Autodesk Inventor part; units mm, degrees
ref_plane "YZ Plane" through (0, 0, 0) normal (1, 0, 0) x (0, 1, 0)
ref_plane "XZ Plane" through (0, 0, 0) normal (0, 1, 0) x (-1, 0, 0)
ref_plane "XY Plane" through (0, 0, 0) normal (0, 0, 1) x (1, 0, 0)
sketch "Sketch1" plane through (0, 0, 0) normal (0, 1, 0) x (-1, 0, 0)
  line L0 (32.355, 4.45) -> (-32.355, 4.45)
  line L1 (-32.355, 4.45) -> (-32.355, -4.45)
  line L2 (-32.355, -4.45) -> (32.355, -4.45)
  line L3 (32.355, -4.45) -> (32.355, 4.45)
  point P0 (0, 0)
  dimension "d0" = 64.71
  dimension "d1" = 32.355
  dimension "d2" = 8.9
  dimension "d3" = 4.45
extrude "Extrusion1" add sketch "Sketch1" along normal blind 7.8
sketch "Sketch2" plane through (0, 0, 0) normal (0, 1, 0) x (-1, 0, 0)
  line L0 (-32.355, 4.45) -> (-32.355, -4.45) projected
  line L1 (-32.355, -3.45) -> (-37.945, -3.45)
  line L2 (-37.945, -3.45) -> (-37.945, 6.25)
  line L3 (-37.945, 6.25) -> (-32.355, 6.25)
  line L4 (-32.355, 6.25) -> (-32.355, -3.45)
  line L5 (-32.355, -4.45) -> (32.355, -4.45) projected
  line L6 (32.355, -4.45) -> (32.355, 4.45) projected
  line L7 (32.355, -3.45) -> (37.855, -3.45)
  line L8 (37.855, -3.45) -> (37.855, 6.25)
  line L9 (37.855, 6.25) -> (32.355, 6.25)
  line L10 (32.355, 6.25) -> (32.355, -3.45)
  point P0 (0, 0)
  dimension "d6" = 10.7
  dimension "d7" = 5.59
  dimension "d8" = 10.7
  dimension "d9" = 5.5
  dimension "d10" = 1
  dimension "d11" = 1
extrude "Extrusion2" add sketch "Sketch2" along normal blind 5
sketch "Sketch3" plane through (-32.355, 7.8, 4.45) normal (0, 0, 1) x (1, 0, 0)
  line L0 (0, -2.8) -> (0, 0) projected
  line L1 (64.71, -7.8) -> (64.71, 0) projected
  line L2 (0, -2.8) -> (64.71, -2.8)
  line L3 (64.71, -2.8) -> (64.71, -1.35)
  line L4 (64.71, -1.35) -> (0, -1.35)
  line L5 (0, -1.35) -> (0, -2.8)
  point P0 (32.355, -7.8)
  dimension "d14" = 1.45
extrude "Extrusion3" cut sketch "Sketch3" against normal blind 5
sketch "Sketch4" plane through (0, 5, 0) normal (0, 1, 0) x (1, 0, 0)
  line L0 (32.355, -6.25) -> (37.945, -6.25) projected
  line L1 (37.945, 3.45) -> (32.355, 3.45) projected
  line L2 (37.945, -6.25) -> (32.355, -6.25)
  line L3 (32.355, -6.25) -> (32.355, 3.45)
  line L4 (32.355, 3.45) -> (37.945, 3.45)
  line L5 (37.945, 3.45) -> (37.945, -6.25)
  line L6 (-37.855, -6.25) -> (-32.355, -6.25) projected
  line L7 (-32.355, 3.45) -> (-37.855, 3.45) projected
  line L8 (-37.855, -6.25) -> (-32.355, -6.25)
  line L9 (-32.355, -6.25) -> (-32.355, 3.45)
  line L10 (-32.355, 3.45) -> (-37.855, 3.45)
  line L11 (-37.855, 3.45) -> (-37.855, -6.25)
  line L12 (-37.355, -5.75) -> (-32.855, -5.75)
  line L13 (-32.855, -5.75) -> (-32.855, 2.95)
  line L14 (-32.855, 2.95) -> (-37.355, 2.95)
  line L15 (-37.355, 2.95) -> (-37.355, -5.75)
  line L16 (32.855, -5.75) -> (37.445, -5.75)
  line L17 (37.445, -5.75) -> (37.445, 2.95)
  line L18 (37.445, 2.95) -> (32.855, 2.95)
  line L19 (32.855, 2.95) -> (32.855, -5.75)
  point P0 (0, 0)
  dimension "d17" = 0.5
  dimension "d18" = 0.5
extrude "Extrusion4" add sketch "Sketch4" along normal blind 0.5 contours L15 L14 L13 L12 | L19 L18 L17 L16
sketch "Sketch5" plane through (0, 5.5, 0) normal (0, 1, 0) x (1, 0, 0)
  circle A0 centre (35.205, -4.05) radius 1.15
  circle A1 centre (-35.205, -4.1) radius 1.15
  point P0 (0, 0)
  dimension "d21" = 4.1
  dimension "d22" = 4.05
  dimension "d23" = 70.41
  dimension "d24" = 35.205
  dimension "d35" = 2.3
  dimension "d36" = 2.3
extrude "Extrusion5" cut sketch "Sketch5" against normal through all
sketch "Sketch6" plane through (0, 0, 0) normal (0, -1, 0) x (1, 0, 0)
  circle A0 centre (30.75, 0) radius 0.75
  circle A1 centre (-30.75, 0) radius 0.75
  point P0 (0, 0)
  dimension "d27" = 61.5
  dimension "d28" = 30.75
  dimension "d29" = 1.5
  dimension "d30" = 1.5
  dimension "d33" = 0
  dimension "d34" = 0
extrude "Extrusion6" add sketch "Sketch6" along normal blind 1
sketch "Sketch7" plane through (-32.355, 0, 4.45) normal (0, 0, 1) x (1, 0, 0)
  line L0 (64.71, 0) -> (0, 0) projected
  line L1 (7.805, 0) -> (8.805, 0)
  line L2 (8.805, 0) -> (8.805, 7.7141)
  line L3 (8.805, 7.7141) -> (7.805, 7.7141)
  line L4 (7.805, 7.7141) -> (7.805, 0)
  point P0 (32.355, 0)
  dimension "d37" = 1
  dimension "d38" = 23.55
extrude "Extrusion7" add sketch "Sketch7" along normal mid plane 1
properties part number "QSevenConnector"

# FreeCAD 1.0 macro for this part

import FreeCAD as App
import Part
import Sketcher
Q = App.Units.Quantity


def add_polygon(sketch, points):
    """Adds a closed chain of lines whose ends are joined by coincident constraints."""
    first, n = sketch.GeometryCount, len(points)
    for a, b in zip(points, points[1:] + points[:1]):
        sketch.addGeometry(Part.LineSegment(App.Vector(*a, 0), App.Vector(*b, 0)), False)
    for i in range(n):
        sketch.addConstraint(Sketcher.Constraint("Coincident", first + i, 2, first + (i + 1) % n, 1))

doc = App.newDocument("Part")
params = doc.addObject("Spreadsheet::Sheet", "Params")
for row, (alias, value) in enumerate([
    ("sketch1_height", "8.9 mm"),
    ("sketch1_width", "64.71 mm"),
    ("pad1_length", "7.8 mm"),
    ("sketch2_width", "5.5 mm"),
    ("sketch2_width2", "5.59 mm"),
    ("sketch2_height", "9.7 mm"),
    ("pad2_length", "5 mm"),
    ("sketch3_height", "1.45 mm"),
    ("sketch3_width", "64.71 mm"),
    ("pocket1_length", "5 mm"),
    ("sketch4_width", "4.5 mm"),
    ("sketch4_height", "8.7 mm"),
    ("sketch4_width2", "4.59 mm"),
    ("pad3_length", "0.5 mm"),
    ("sketch5_diameter", "2.3 mm"),
    ("sketch6_diameter", "1.5 mm"),
    ("pad4_length", "1 mm"),
    ("sketch7_width", "1 mm"),
    ("pad5_length", "1 mm"),
], start=1):
    params.set(f"A{row}", alias)
    params.set(f"B{row}", "=" + value)
    params.setAlias(f"B{row}", alias)

body = doc.addObject("PartDesign::Body", "Body")

sketch1 = body.newObject("Sketcher::SketchObject", "Sketch")
sketch1.AttachmentSupport = (doc.getObject("XZ_Plane"), [""])
sketch1.MapMode = "FlatFace"
add_polygon(sketch1, [(-32, -4), (-32, 4), (32, 4), (32, -4)])
sketch1.addConstraint(Sketcher.Constraint("Vertical", 0))
sketch1.addConstraint(Sketcher.Constraint("Horizontal", 1))
sketch1.addConstraint(Sketcher.Constraint("Vertical", 2))
sketch1.addConstraint(Sketcher.Constraint("Horizontal", 3))
sketch1.addConstraint(Sketcher.Constraint("Symmetric", 0, 2, 2, 2, -1, 1))
sketch1.addConstraint(Sketcher.Constraint("DistanceY", 0, 1, 0, 2, Q("8.9 mm")))
sketch1.addConstraint(Sketcher.Constraint("DistanceX", 1, 1, 1, 2, Q("64.71 mm")))
sketch1.setExpression("Constraints[9]", "Params.sketch1_height")
sketch1.setExpression("Constraints[10]", "Params.sketch1_width")
pad1 = body.newObject("PartDesign::Pad", "Pad")
pad1.Profile = sketch1
pad1.setExpression("Length", "Params.pad1_length")
pad1.Reversed = True

sketch2 = body.newObject("Sketcher::SketchObject", "Sketch001")
sketch2.AttachmentSupport = (doc.getObject("XZ_Plane"), [""])
sketch2.MapMode = "FlatFace"
add_polygon(sketch2, [(-32, 6), (-32, -3), (-38, -3), (-38, 6)])
add_polygon(sketch2, [(32, -3), (32, 6), (38, 6), (38, -3)])
sketch2.addConstraint(Sketcher.Constraint("Vertical", 0))
sketch2.addConstraint(Sketcher.Constraint("Horizontal", 1))
sketch2.addConstraint(Sketcher.Constraint("Vertical", 2))
sketch2.addConstraint(Sketcher.Constraint("Horizontal", 3))
sketch2.addConstraint(Sketcher.Constraint("Vertical", 4))
sketch2.addConstraint(Sketcher.Constraint("Horizontal", 5))
sketch2.addConstraint(Sketcher.Constraint("Vertical", 6))
sketch2.addConstraint(Sketcher.Constraint("Horizontal", 7))
sketch2.addConstraint(Sketcher.Constraint("Symmetric", 3, 2, 4, 2, -2))
sketch2.addConstraint(Sketcher.Constraint("Horizontal", 1, 2, 6, 2))
sketch2.addConstraint(Sketcher.Constraint("DistanceX", 1, 2, 1, 1, Q("5.5 mm")))
sketch2.addConstraint(Sketcher.Constraint("DistanceX", 5, 1, 5, 2, Q("5.59 mm")))
sketch2.addConstraint(Sketcher.Constraint("DistanceY", 0, 2, 0, 1, Q("9.7 mm")))
sketch2.addConstraint(Sketcher.Constraint("DistanceX", 3, 2, 5, 2, Q("70.3 mm")))
sketch2.addConstraint(Sketcher.Constraint("DistanceY", 0, 2, -1, 1, Q("3.45 mm")))
sketch2.setExpression("Constraints[18]", "Params.sketch2_width")
sketch2.setExpression("Constraints[19]", "Params.sketch2_width2")
sketch2.setExpression("Constraints[20]", "Params.sketch2_height")
pad2 = body.newObject("PartDesign::Pad", "Pad001")
pad2.Profile = sketch2
pad2.setExpression("Length", "Params.pad2_length")
pad2.Reversed = True

sketch3 = body.newObject("Sketcher::SketchObject", "Sketch002")
sketch3.AttachmentSupport = (doc.getObject("XY_Plane"), [""])
sketch3.MapMode = "FlatFace"
sketch3.AttachmentOffset = App.Placement(App.Vector(0, 0, 4.45), App.Rotation())
add_polygon(sketch3, [(-32.4, 6.5), (-32.4, 5), (32.4, 5), (32.4, 6.5)])
sketch3.addConstraint(Sketcher.Constraint("Vertical", 0))
sketch3.addConstraint(Sketcher.Constraint("Horizontal", 1))
sketch3.addConstraint(Sketcher.Constraint("Vertical", 2))
sketch3.addConstraint(Sketcher.Constraint("Horizontal", 3))
sketch3.addConstraint(Sketcher.Constraint("DistanceY", 0, 2, 0, 1, Q("1.45 mm")))
sketch3.addConstraint(Sketcher.Constraint("DistanceY", -1, 1, 0, 2, Q("5 mm")))
sketch3.addConstraint(Sketcher.Constraint("DistanceX", 1, 1, 1, 2, Q("64.71 mm")))
sketch3.addConstraint(Sketcher.Constraint("DistanceX", 0, 2, -1, 1, Q("32.355 mm")))
sketch3.setExpression("Constraints[8]", "Params.sketch3_height")
sketch3.setExpression("Constraints[10]", "Params.sketch3_width")
pocket1 = body.newObject("PartDesign::Pocket", "Pocket")
pocket1.Profile = sketch3
pocket1.setExpression("Length", "Params.pocket1_length")

sketch4 = body.newObject("Sketcher::SketchObject", "Sketch003")
sketch4.AttachmentSupport = (doc.getObject("XZ_Plane"), [""])
sketch4.MapMode = "FlatFace"
sketch4.AttachmentOffset = App.Placement(App.Vector(0, 0, -5), App.Rotation())
add_polygon(sketch4, [(-37.4, -3), (-37.4, 5.8), (-32.9, 5.8), (-32.9, -3)])
add_polygon(sketch4, [(32.9, -3), (32.9, 5.8), (37.4, 5.8), (37.4, -3)])
sketch4.addConstraint(Sketcher.Constraint("Vertical", 0))
sketch4.addConstraint(Sketcher.Constraint("Horizontal", 1))
sketch4.addConstraint(Sketcher.Constraint("Vertical", 2))
sketch4.addConstraint(Sketcher.Constraint("Horizontal", 3))
sketch4.addConstraint(Sketcher.Constraint("Vertical", 4))
sketch4.addConstraint(Sketcher.Constraint("Horizontal", 5))
sketch4.addConstraint(Sketcher.Constraint("Vertical", 6))
sketch4.addConstraint(Sketcher.Constraint("Horizontal", 7))
sketch4.addConstraint(Sketcher.Constraint("Symmetric", 1, 2, 4, 2, -2))
sketch4.addConstraint(Sketcher.Constraint("Horizontal", 3, 2, 6, 2))
sketch4.addConstraint(Sketcher.Constraint("DistanceX", 1, 1, 1, 2, Q("4.5 mm")))
sketch4.addConstraint(Sketcher.Constraint("DistanceY", 0, 1, 0, 2, Q("8.7 mm")))
sketch4.addConstraint(Sketcher.Constraint("DistanceX", 5, 1, 5, 2, Q("4.59 mm")))
sketch4.addConstraint(Sketcher.Constraint("DistanceX", 1, 2, 5, 2, Q("70.3 mm")))
sketch4.addConstraint(Sketcher.Constraint("DistanceY", -1, 1, 0, 2, Q("5.75 mm")))
sketch4.setExpression("Constraints[18]", "Params.sketch4_width")
sketch4.setExpression("Constraints[19]", "Params.sketch4_height")
sketch4.setExpression("Constraints[20]", "Params.sketch4_width2")
pad3 = body.newObject("PartDesign::Pad", "Pad002")
pad3.Profile = sketch4
pad3.setExpression("Length", "Params.pad3_length")
pad3.Reversed = True

sketch5 = body.newObject("Sketcher::SketchObject", "Sketch004")
sketch5.AttachmentSupport = (doc.getObject("XZ_Plane"), [""])
sketch5.MapMode = "FlatFace"
sketch5.AttachmentOffset = App.Placement(App.Vector(0, 0, -5.5), App.Rotation())
sketch5.addGeometry(Part.Circle(App.Vector(35.2, 4, 0), App.Vector(0, 0, 1), 1.1), False)
sketch5.addGeometry(Part.Circle(App.Vector(-35.2, 4.1, 0), App.Vector(0, 0, 1), 1.1), False)
sketch5.addConstraint(Sketcher.Constraint("Equal", 0, 1))
sketch5.addConstraint(Sketcher.Constraint("Diameter", 0, Q("2.3 mm")))
sketch5.addConstraint(Sketcher.Constraint("DistanceY", -1, 1, 1, 3, Q("4.1 mm")))
sketch5.addConstraint(Sketcher.Constraint("DistanceY", -1, 1, 0, 3, Q("4.05 mm")))
sketch5.addConstraint(Sketcher.Constraint("DistanceX", 1, 3, 0, 3, Q("70.41 mm")))
sketch5.addConstraint(Sketcher.Constraint("DistanceX", -1, 1, 0, 3, Q("35.205 mm")))
sketch5.setExpression("Constraints[1]", "Params.sketch5_diameter")
pocket2 = body.newObject("PartDesign::Pocket", "Pocket001")
pocket2.Profile = sketch5
pocket2.Type = "ThroughAll"
pocket2.Reversed = True

sketch6 = body.newObject("Sketcher::SketchObject", "Sketch005")
sketch6.AttachmentSupport = (doc.getObject("XZ_Plane"), [""])
sketch6.MapMode = "FlatFace"
sketch6.addGeometry(Part.Circle(App.Vector(30.8, 0, 0), App.Vector(0, 0, 1), 0.8), False)
sketch6.addGeometry(Part.Circle(App.Vector(-30.8, 0, 0), App.Vector(0, 0, 1), 0.8), False)
sketch6.addConstraint(Sketcher.Constraint("Equal", 0, 1))
sketch6.addConstraint(Sketcher.Constraint("Symmetric", 0, 3, 1, 3, -1, 1))
sketch6.addConstraint(Sketcher.Constraint("PointOnObject", 0, 3, -1))
sketch6.addConstraint(Sketcher.Constraint("Diameter", 0, Q("1.5 mm")))
sketch6.addConstraint(Sketcher.Constraint("DistanceX", 1, 3, 0, 3, Q("61.5 mm")))
sketch6.setExpression("Constraints[3]", "Params.sketch6_diameter")
pad4 = body.newObject("PartDesign::Pad", "Pad003")
pad4.Profile = sketch6
pad4.setExpression("Length", "Params.pad4_length")

sketch7 = body.newObject("Sketcher::SketchObject", "Sketch006")
sketch7.AttachmentSupport = (doc.getObject("XY_Plane"), [""])
sketch7.MapMode = "FlatFace"
sketch7.AttachmentOffset = App.Placement(App.Vector(0, 0, 4.45), App.Rotation())
add_polygon(sketch7, [(-24.6, 0), (-23.6, 0), (-23.6, 7.7), (-24.6, 7.7)])
sketch7.addConstraint(Sketcher.Constraint("Horizontal", 0))
sketch7.addConstraint(Sketcher.Constraint("Vertical", 1))
sketch7.addConstraint(Sketcher.Constraint("Horizontal", 2))
sketch7.addConstraint(Sketcher.Constraint("Vertical", 3))
sketch7.addConstraint(Sketcher.Constraint("PointOnObject", 0, 2, -1))
sketch7.addConstraint(Sketcher.Constraint("DistanceX", 0, 1, 0, 2, Q("1 mm")))
sketch7.addConstraint(Sketcher.Constraint("DistanceX", 0, 2, -1, 1, Q("23.55 mm")))
sketch7.addConstraint(Sketcher.Constraint("DistanceY", 1, 1, 1, 2, Q("7.714 mm")))
sketch7.setExpression("Constraints[9]", "Params.sketch7_width")
pad5 = body.newObject("PartDesign::Pad", "Pad004")
pad5.Profile = sketch7
pad5.setExpression("Length", "Params.pad5_length")
pad5.Midplane = True

doc.recompute()
